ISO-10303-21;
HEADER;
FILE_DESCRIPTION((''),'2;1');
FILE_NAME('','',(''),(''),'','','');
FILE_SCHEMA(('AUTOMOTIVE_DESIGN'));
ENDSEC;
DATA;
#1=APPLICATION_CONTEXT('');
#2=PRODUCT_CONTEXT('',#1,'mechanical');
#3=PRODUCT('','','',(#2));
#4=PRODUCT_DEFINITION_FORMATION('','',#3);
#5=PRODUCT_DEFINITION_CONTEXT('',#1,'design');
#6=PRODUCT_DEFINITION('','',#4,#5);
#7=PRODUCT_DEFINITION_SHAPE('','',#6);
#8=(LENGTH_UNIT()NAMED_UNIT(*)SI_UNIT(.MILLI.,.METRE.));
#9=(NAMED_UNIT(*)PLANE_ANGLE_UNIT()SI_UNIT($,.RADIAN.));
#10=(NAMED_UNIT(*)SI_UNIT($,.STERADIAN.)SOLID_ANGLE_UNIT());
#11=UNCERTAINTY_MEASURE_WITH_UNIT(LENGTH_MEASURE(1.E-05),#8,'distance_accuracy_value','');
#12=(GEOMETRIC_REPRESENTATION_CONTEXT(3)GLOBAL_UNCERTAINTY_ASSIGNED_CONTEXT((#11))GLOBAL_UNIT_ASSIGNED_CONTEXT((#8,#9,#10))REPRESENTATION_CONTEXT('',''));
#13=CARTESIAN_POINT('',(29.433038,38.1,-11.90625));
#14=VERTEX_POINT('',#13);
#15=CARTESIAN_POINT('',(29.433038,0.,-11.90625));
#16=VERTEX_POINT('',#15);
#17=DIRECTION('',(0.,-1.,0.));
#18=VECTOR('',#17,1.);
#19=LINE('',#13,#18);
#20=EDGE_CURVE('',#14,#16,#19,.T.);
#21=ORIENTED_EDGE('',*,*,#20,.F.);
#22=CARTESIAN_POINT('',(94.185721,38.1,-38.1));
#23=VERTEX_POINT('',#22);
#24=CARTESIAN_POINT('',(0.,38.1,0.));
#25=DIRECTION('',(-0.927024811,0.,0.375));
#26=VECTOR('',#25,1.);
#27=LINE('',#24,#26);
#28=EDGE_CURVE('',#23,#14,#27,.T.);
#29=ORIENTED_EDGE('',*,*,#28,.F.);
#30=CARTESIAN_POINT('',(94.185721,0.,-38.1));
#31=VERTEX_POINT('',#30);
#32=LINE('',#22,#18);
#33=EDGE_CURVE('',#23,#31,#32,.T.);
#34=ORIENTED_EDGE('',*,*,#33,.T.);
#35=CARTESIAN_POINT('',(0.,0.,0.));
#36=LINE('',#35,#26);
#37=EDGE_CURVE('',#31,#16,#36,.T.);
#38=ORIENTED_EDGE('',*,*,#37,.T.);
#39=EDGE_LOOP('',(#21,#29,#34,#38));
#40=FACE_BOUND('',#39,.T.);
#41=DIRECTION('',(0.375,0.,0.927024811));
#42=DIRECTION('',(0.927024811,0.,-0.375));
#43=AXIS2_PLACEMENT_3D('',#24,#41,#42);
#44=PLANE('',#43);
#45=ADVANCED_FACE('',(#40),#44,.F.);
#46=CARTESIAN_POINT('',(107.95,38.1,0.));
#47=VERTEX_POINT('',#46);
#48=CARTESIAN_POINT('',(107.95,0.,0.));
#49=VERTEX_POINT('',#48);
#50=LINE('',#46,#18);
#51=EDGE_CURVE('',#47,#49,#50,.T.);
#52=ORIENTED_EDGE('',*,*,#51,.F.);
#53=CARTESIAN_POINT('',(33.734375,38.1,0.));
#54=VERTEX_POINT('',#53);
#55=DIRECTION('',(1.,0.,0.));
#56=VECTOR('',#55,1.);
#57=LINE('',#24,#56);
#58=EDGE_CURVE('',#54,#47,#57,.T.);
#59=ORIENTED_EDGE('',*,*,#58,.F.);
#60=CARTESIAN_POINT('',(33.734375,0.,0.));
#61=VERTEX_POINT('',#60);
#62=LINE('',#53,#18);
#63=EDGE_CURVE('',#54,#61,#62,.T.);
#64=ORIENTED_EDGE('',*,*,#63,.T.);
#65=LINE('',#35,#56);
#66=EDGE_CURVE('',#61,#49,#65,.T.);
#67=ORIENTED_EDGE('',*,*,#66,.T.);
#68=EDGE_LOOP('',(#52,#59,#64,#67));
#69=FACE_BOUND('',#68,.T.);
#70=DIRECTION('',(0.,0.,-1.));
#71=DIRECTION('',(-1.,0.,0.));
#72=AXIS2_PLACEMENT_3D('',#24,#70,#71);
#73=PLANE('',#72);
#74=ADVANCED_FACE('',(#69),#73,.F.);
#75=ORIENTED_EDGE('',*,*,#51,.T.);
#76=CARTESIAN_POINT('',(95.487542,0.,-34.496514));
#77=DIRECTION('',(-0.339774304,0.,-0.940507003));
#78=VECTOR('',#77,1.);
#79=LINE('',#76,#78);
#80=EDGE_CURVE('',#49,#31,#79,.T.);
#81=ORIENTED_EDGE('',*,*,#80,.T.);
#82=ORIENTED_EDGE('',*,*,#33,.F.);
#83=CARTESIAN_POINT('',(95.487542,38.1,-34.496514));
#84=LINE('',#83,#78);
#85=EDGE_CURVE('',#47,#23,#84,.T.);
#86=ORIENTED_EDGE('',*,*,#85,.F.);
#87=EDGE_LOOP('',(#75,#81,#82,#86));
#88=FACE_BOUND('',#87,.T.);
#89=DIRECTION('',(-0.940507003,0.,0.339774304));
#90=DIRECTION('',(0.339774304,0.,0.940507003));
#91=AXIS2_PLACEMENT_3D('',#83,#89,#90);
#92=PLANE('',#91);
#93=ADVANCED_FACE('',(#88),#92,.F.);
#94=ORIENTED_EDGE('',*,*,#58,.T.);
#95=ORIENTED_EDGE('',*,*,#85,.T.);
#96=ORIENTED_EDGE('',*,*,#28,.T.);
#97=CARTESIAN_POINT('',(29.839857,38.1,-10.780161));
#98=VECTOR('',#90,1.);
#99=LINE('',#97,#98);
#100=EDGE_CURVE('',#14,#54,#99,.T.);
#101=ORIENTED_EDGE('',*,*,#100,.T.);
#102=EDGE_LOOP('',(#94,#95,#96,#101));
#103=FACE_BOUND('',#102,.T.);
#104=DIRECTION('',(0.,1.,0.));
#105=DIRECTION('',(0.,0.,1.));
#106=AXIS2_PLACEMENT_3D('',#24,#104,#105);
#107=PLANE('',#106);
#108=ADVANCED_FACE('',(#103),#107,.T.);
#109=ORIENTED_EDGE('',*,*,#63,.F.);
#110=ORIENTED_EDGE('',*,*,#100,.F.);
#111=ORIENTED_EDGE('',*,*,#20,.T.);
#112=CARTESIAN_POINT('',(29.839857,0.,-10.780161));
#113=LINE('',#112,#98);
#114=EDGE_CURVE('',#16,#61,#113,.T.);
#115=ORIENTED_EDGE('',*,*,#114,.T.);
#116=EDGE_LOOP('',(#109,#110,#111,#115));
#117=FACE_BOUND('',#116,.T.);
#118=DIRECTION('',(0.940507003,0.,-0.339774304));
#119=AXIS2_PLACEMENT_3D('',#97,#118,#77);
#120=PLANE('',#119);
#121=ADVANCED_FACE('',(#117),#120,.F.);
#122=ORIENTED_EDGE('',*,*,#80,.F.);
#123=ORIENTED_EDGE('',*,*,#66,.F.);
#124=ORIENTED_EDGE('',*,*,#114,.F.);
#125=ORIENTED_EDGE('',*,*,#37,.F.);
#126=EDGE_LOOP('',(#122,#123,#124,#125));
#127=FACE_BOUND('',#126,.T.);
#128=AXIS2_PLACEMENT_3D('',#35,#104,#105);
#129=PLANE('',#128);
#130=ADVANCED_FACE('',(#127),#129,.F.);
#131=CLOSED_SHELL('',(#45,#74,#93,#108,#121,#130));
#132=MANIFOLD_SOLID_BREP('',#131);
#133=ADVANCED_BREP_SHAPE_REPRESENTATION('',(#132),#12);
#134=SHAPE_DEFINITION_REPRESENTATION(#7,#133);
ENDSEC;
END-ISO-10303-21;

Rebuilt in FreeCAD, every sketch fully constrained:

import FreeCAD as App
import Part
import Sketcher

V = App.Vector
Q = App.Units.Quantity

doc = App.newDocument("Part")
body = doc.addObject("PartDesign::Body", "Body")

sketch1 = doc.addObject("Sketcher::SketchObject", "Sketch")
body.addObject(sketch1)
sketch1.AttachmentSupport = (doc.XZ_Plane, [""])
sketch1.MapMode = "FlatFace"
sketch1.addGeometry(Part.LineSegment(V(29.433038, -11.90625, 0), V(33.734375, 0, 0)), False)
sketch1.addGeometry(Part.LineSegment(V(33.734375, 0, 0), V(107.95, 0, 0)), False)
sketch1.addGeometry(Part.LineSegment(V(107.95, 0, 0), V(94.185721, -38.1, 0)), False)
sketch1.addGeometry(Part.LineSegment(V(94.185721, -38.1, 0), V(29.433038, -11.90625, 0)), False)
sketch1.addConstraint(Sketcher.Constraint("Coincident", 0, 2, 1, 1))
sketch1.addConstraint(Sketcher.Constraint("Coincident", 1, 2, 2, 1))
sketch1.addConstraint(Sketcher.Constraint("Coincident", 2, 2, 3, 1))
sketch1.addConstraint(Sketcher.Constraint("Coincident", 3, 2, 0, 1))
sketch1.addConstraint(Sketcher.Constraint("Horizontal", 1))
sketch1.addConstraint(Sketcher.Constraint("PointOnObject", 0, 2, -1))
sketch1.addConstraint(Sketcher.Constraint("Parallel", 0, 2))
sketch1.addConstraint(Sketcher.Constraint("DistanceY", 2, 2, -1, 1, Q("1.5 in")))
sketch1.addConstraint(Sketcher.Constraint("Distance", 3, Q("2.75 in")))
sketch1.addConstraint(Sketcher.Constraint("DistanceX", 1, 1, 1, 2, Q("2.921875 in")))
sketch1.addConstraint(Sketcher.Constraint("DistanceX", -1, 1, 1, 2, Q("4.25 in")))
sketch1.addConstraint(Sketcher.Constraint("DistanceY", 3, 2, -1, 1, Q("0.46875 in")))
pad1 = doc.addObject("PartDesign::Pad", "Pad")
body.addObject(pad1)
pad1.Profile = sketch1
pad1.Length = Q("1.5 in")
pad1.Reversed = True

doc.recompute()
